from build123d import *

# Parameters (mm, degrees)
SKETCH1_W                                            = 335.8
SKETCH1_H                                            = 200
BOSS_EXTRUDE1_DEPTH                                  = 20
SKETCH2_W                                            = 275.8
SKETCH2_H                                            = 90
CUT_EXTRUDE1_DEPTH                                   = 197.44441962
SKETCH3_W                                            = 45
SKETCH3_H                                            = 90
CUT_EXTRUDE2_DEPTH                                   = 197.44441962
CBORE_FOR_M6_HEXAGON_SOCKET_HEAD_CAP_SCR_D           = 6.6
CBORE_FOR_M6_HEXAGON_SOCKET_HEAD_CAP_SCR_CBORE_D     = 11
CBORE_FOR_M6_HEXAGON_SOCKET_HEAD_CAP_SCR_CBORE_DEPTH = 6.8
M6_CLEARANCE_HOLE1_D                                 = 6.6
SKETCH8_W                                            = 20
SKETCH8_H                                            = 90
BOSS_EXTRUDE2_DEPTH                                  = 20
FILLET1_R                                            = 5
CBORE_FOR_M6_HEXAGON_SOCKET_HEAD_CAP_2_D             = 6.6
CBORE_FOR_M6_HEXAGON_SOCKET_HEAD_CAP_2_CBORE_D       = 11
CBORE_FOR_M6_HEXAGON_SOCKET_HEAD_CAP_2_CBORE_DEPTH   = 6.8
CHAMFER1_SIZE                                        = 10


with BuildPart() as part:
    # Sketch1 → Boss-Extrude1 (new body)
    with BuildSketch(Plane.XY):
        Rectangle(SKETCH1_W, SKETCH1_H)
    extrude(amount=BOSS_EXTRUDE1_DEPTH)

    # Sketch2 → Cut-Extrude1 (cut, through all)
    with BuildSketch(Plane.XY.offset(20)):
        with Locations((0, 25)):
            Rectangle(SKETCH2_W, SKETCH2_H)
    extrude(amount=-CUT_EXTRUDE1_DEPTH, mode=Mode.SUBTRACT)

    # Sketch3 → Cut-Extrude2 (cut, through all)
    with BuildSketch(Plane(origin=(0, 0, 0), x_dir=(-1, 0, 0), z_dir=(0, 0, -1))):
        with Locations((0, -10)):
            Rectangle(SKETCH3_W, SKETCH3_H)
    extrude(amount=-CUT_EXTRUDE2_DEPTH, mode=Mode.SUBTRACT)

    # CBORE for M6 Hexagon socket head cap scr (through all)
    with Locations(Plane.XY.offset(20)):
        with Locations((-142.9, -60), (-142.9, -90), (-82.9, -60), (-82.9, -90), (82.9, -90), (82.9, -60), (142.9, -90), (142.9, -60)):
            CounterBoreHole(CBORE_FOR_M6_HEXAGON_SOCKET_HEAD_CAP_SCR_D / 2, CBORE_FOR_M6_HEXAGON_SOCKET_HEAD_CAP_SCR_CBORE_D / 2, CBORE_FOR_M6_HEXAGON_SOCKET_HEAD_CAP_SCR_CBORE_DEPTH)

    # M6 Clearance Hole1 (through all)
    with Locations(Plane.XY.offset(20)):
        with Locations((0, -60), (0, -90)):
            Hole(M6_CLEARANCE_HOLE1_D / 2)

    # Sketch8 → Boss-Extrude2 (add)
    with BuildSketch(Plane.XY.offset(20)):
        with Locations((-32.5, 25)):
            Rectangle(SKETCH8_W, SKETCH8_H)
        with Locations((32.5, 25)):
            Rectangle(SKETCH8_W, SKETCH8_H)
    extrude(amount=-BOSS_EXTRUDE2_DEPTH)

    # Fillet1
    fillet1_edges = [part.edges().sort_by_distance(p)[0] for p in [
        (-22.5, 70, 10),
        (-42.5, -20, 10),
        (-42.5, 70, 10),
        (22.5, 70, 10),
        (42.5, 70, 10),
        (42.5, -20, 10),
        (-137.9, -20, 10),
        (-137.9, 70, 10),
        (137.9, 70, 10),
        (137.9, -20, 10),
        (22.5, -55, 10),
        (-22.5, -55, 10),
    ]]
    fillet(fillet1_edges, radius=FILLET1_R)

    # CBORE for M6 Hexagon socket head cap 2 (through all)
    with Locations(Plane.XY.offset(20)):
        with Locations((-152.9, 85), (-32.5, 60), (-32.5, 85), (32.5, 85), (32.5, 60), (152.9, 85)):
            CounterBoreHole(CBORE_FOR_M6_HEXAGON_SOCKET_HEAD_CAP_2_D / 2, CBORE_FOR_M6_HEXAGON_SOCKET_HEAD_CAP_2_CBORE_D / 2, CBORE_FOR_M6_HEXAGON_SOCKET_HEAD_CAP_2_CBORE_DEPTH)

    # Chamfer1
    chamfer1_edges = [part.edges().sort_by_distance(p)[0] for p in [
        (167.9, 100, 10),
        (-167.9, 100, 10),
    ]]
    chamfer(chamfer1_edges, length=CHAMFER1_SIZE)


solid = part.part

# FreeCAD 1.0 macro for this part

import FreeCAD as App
import Part
import Sketcher
Q = App.Units.Quantity


def edges_at(feature, points):
    """Names of the edges that pass closest to the given points."""
    edges = feature.Shape.Edges
    near = lambda p: min(range(len(edges)), key=lambda i: edges[i].distToShape(Part.Vertex(*p))[0])
    return sorted({f"Edge{near(p) + 1}" for p in points})

doc = App.newDocument("Part")
params = doc.addObject("Spreadsheet::Sheet", "Params")
for row, (alias, value) in enumerate([
    ("sketch1_height", "200 mm"),
    ("sketch1_width", "335.8 mm"),
    ("pad1_length", "20 mm"),
    ("sketch2_height", "90 mm"),
    ("sketch2_width", "275.8 mm"),
    ("sketch3_width", "45 mm"),
    ("sketch3_height", "90 mm"),
    ("sketch4_diameter", "6.6 mm"),
    ("hole_diameter", "6.6 mm"),
    ("hole_cbore_diameter", "11 mm"),
    ("hole_cbore_depth", "6.8 mm"),
    ("sketch5_diameter", "6.6 mm"),
    ("hole2_diameter", "6.6 mm"),
    ("sketch6_width", "20 mm"),
    ("sketch6_height", "90 mm"),
    ("pad2_length", "20 mm"),
    ("fillet_radius", "5 mm"),
    ("sketch7_diameter", "6.6 mm"),
    ("hole3_diameter", "6.6 mm"),
    ("hole3_cbore_diameter", "11 mm"),
    ("hole3_cbore_depth", "6.8 mm"),
    ("chamfer_size", "10 mm"),
], start=1):
    params.set(f"A{row}", alias)
    params.set(f"B{row}", "=" + value)
    params.setAlias(f"B{row}", alias)

body = doc.addObject("PartDesign::Body", "Body")

# Sketch on XY plane
sketch1 = body.newObject("Sketcher::SketchObject", "Sketch")
sketch1.AttachmentSupport = (doc.getObject("XY_Plane"), [""])
sketch1.MapMode = "FlatFace"
sketch1.addGeometry([
    Part.LineSegment(App.Vector(-168, 100, 0), App.Vector(-168, -100, 0)),
    Part.LineSegment(App.Vector(-168, -100, 0), App.Vector(168, -100, 0)),
    Part.LineSegment(App.Vector(168, -100, 0), App.Vector(168, 100, 0)),
    Part.LineSegment(App.Vector(168, 100, 0), App.Vector(-168, 100, 0)),
], False)
sketch1.addConstraint([
    Sketcher.Constraint("Coincident", 0, 2, 1, 1),
    Sketcher.Constraint("Coincident", 1, 2, 2, 1),
    Sketcher.Constraint("Coincident", 2, 2, 3, 1),
    Sketcher.Constraint("Coincident", 3, 2, 0, 1),
    Sketcher.Constraint("Vertical", 0),
    Sketcher.Constraint("Horizontal", 1),
    Sketcher.Constraint("Vertical", 2),
    Sketcher.Constraint("Horizontal", 3),
    Sketcher.Constraint("Symmetric", 0, 2, 2, 2, -1, 1),
    Sketcher.Constraint("DistanceY", 0, 2, 0, 1, Q("200 mm")),
    Sketcher.Constraint("DistanceX", 1, 1, 1, 2, Q("335.8 mm")),
])
sketch1.setExpression("Constraints[9]", "Params.sketch1_height")
sketch1.setExpression("Constraints[10]", "Params.sketch1_width")
pad1 = body.newObject("PartDesign::Pad", "Pad")
pad1.Profile = sketch1
pad1.setExpression("Length", "Params.pad1_length")

# Sketch on XY plane
sketch2 = body.newObject("Sketcher::SketchObject", "Sketch001")
sketch2.AttachmentSupport = (doc.getObject("XY_Plane"), [""])
sketch2.MapMode = "FlatFace"
sketch2.AttachmentOffset = App.Placement(App.Vector(0, 0, 20), App.Rotation())
sketch2.addGeometry([
    Part.LineSegment(App.Vector(-138, 70, 0), App.Vector(-138, -20, 0)),
    Part.LineSegment(App.Vector(-138, -20, 0), App.Vector(138, -20, 0)),
    Part.LineSegment(App.Vector(138, -20, 0), App.Vector(138, 70, 0)),
    Part.LineSegment(App.Vector(138, 70, 0), App.Vector(-138, 70, 0)),
], False)
sketch2.addConstraint([
    Sketcher.Constraint("Coincident", 0, 2, 1, 1),
    Sketcher.Constraint("Coincident", 1, 2, 2, 1),
    Sketcher.Constraint("Coincident", 2, 2, 3, 1),
    Sketcher.Constraint("Coincident", 3, 2, 0, 1),
    Sketcher.Constraint("Vertical", 0),
    Sketcher.Constraint("Horizontal", 1),
    Sketcher.Constraint("Vertical", 2),
    Sketcher.Constraint("Horizontal", 3),
    Sketcher.Constraint("DistanceY", 0, 2, 0, 1, Q("90 mm")),
    Sketcher.Constraint("DistanceX", 1, 1, 1, 2, Q("275.8 mm")),
    Sketcher.Constraint("DistanceY", 0, 2, -1, 1, Q("20 mm")),
    Sketcher.Constraint("DistanceX", 0, 2, -1, 1, Q("137.9 mm")),
])
sketch2.setExpression("Constraints[8]", "Params.sketch2_height")
sketch2.setExpression("Constraints[9]", "Params.sketch2_width")
pocket1 = body.newObject("PartDesign::Pocket", "Pocket")
pocket1.Profile = sketch2
pocket1.Type = "ThroughAll"

# Sketch on XY plane
sketch3 = body.newObject("Sketcher::SketchObject", "Sketch002")
sketch3.AttachmentSupport = (doc.getObject("XY_Plane"), [""])
sketch3.MapMode = "FlatFace"
sketch3.addGeometry([
    Part.LineSegment(App.Vector(22, 35, 0), App.Vector(22, -55, 0)),
    Part.LineSegment(App.Vector(22, -55, 0), App.Vector(-22, -55, 0)),
    Part.LineSegment(App.Vector(-22, -55, 0), App.Vector(-22, 35, 0)),
    Part.LineSegment(App.Vector(-22, 35, 0), App.Vector(22, 35, 0)),
], False)
sketch3.addConstraint([
    Sketcher.Constraint("Coincident", 0, 2, 1, 1),
    Sketcher.Constraint("Coincident", 1, 2, 2, 1),
    Sketcher.Constraint("Coincident", 2, 2, 3, 1),
    Sketcher.Constraint("Coincident", 3, 2, 0, 1),
    Sketcher.Constraint("Vertical", 0),
    Sketcher.Constraint("Horizontal", 1),
    Sketcher.Constraint("Vertical", 2),
    Sketcher.Constraint("Horizontal", 3),
    Sketcher.Constraint("DistanceX", 1, 2, 1, 1, Q("45 mm")),
    Sketcher.Constraint("DistanceY", 0, 2, 0, 1, Q("90 mm")),
    Sketcher.Constraint("DistanceY", 0, 2, -1, 1, Q("55 mm")),
    Sketcher.Constraint("DistanceX", -1, 1, 0, 2, Q("22.5 mm")),
])
sketch3.setExpression("Constraints[8]", "Params.sketch3_width")
sketch3.setExpression("Constraints[9]", "Params.sketch3_height")
pocket2 = body.newObject("PartDesign::Pocket", "Pocket001")
pocket2.Profile = sketch3
pocket2.Type = "ThroughAll"
pocket2.Reversed = True

# Sketch on XY plane
sketch4 = body.newObject("Sketcher::SketchObject", "Sketch003")
sketch4.AttachmentSupport = (doc.getObject("XY_Plane"), [""])
sketch4.MapMode = "FlatFace"
sketch4.AttachmentOffset = App.Placement(App.Vector(0, 0, 20), App.Rotation())
sketch4.addGeometry([
    Part.Circle(App.Vector(-142.9, -60, 0), App.Vector(0, 0, 1), 3.3),  # 0
    Part.Circle(App.Vector(-142.9, -90, 0), App.Vector(0, 0, 1), 3.3),  # 1
    Part.Circle(App.Vector(-82.9, -60, 0), App.Vector(0, 0, 1), 3.3),  # 2
    Part.Circle(App.Vector(-82.9, -90, 0), App.Vector(0, 0, 1), 3.3),  # 3
    Part.Circle(App.Vector(82.9, -90, 0), App.Vector(0, 0, 1), 3.3),  # 4
    Part.Circle(App.Vector(82.9, -60, 0), App.Vector(0, 0, 1), 3.3),  # 5
    Part.Circle(App.Vector(142.9, -90, 0), App.Vector(0, 0, 1), 3.3),  # 6
    Part.Circle(App.Vector(142.9, -60, 0), App.Vector(0, 0, 1), 3.3),  # 7
], False)
sketch4.addConstraint([
    Sketcher.Constraint("Equal", 0, 1),
    Sketcher.Constraint("Equal", 1, 2),
    Sketcher.Constraint("Equal", 2, 3),
    Sketcher.Constraint("Equal", 3, 4),
    Sketcher.Constraint("Equal", 4, 5),
    Sketcher.Constraint("Equal", 5, 6),
    Sketcher.Constraint("Equal", 6, 7),
    Sketcher.Constraint("Symmetric", 3, 3, 4, 3, -2),
    Sketcher.Constraint("Symmetric", 2, 3, 5, 3, -2),
    Sketcher.Constraint("Symmetric", 1, 3, 6, 3, -2),
    Sketcher.Constraint("Symmetric", 0, 3, 7, 3, -2),
    Sketcher.Constraint("Horizontal", 0, 3, 2, 3),
    Sketcher.Constraint("Horizontal", 1, 3, 3, 3),
    Sketcher.Constraint("Vertical", 0, 3, 1, 3),
    Sketcher.Constraint("Vertical", 2, 3, 3, 3),
    Sketcher.Constraint("Diameter", 0, Q("6.6 mm")),
    Sketcher.Constraint("DistanceY", 0, 3, -1, 1, Q("60 mm")),
    Sketcher.Constraint("DistanceY", 1, 3, -1, 1, Q("90 mm")),
    Sketcher.Constraint("DistanceX", 0, 3, 2, 3, Q("60 mm")),
    Sketcher.Constraint("DistanceX", 0, 3, -1, 1, Q("142.9 mm")),
])
sketch4.setExpression("Constraints[15]", "Params.sketch4_diameter")
doc.recompute()
hole = body.newObject("PartDesign::Hole", "Hole")
hole.Profile = sketch4
hole.ThreadType = "None"
hole.setExpression("Diameter", "Params.hole_diameter")
hole.DepthType = "ThroughAll"
hole.HoleCutType = "Counterbore"
hole.setExpression("HoleCutDiameter", "Params.hole_cbore_diameter")
hole.setExpression("HoleCutDepth", "Params.hole_cbore_depth")

# Sketch on XY plane
sketch5 = body.newObject("Sketcher::SketchObject", "Sketch004")
sketch5.AttachmentSupport = (doc.getObject("XY_Plane"), [""])
sketch5.MapMode = "FlatFace"
sketch5.AttachmentOffset = App.Placement(App.Vector(0, 0, 20), App.Rotation())
sketch5.addGeometry([
    Part.Circle(App.Vector(0, -60, 0), App.Vector(0, 0, 1), 3.3),
    Part.Circle(App.Vector(0, -90, 0), App.Vector(0, 0, 1), 3.3),
], False)
sketch5.addConstraint([
    Sketcher.Constraint("Equal", 0, 1),
    Sketcher.Constraint("PointOnObject", 0, 3, -2),
    Sketcher.Constraint("PointOnObject", 1, 3, -2),
    Sketcher.Constraint("Diameter", 0, Q("6.6 mm")),
    Sketcher.Constraint("DistanceY", 0, 3, -1, 1, Q("60 mm")),
    Sketcher.Constraint("DistanceY", 1, 3, -1, 1, Q("90 mm")),
])
sketch5.setExpression("Constraints[3]", "Params.sketch5_diameter")
doc.recompute()
hole2 = body.newObject("PartDesign::Hole", "Hole001")
hole2.Profile = sketch5
hole2.ThreadType = "None"
hole2.setExpression("Diameter", "Params.hole2_diameter")
hole2.DepthType = "ThroughAll"

# Sketch on XY plane
sketch6 = body.newObject("Sketcher::SketchObject", "Sketch005")
sketch6.AttachmentSupport = (doc.getObject("XY_Plane"), [""])
sketch6.MapMode = "FlatFace"
sketch6.AttachmentOffset = App.Placement(App.Vector(0, 0, 20), App.Rotation())
sketch6.addGeometry([
    Part.LineSegment(App.Vector(-42, 70, 0), App.Vector(-42, -20, 0)),  # 0
    Part.LineSegment(App.Vector(-42, -20, 0), App.Vector(-22, -20, 0)),  # 1
    Part.LineSegment(App.Vector(-22, -20, 0), App.Vector(-22, 70, 0)),  # 2
    Part.LineSegment(App.Vector(-22, 70, 0), App.Vector(-42, 70, 0)),  # 3
    Part.LineSegment(App.Vector(22, 70, 0), App.Vector(22, -20, 0)),  # 4
    Part.LineSegment(App.Vector(22, -20, 0), App.Vector(42, -20, 0)),  # 5
    Part.LineSegment(App.Vector(42, -20, 0), App.Vector(42, 70, 0)),  # 6
    Part.LineSegment(App.Vector(42, 70, 0), App.Vector(22, 70, 0)),  # 7
], False)
sketch6.addConstraint([
    Sketcher.Constraint("Coincident", 0, 2, 1, 1),
    Sketcher.Constraint("Coincident", 1, 2, 2, 1),
    Sketcher.Constraint("Coincident", 2, 2, 3, 1),
    Sketcher.Constraint("Coincident", 3, 2, 0, 1),
    Sketcher.Constraint("Coincident", 4, 2, 5, 1),
    Sketcher.Constraint("Coincident", 5, 2, 6, 1),
    Sketcher.Constraint("Coincident", 6, 2, 7, 1),
    Sketcher.Constraint("Coincident", 7, 2, 4, 1),
    Sketcher.Constraint("Vertical", 0),
    Sketcher.Constraint("Horizontal", 1),
    Sketcher.Constraint("Vertical", 2),
    Sketcher.Constraint("Horizontal", 3),
    Sketcher.Constraint("Vertical", 4),
    Sketcher.Constraint("Horizontal", 5),
    Sketcher.Constraint("Vertical", 6),
    Sketcher.Constraint("Horizontal", 7),
    Sketcher.Constraint("Symmetric", 1, 2, 4, 2, -2),
    Sketcher.Constraint("Symmetric", 3, 2, 6, 2, -2),
    Sketcher.Constraint("DistanceX", 1, 1, 1, 2, Q("20 mm")),
    Sketcher.Constraint("DistanceY", 0, 2, 0, 1, Q("90 mm")),
    Sketcher.Constraint("DistanceY", 0, 2, -1, 1, Q("20 mm")),
    Sketcher.Constraint("DistanceX", 1, 2, 4, 2, Q("45 mm")),
])
sketch6.setExpression("Constraints[18]", "Params.sketch6_width")
sketch6.setExpression("Constraints[19]", "Params.sketch6_height")
pad2 = body.newObject("PartDesign::Pad", "Pad001")
pad2.Profile = sketch6
pad2.setExpression("Length", "Params.pad2_length")
pad2.Reversed = True
doc.recompute()

fillet = body.newObject("PartDesign::Fillet", "Fillet")
fillet.Base = (pad2, edges_at(pad2, [
    (-22.5, 70, 10),
    (-42.5, -20, 10),
    (-42.5, 70, 10),
    (22.5, 70, 10),
    (42.5, 70, 10),
    (42.5, -20, 10),
    (-137.9, -20, 10),
    (-137.9, 70, 10),
    (137.9, 70, 10),
    (137.9, -20, 10),
    (22.5, -55, 10),
    (-22.5, -55, 10),
]))
fillet.setExpression("Radius", "Params.fillet_radius")

# Sketch on XY plane
sketch7 = body.newObject("Sketcher::SketchObject", "Sketch006")
sketch7.AttachmentSupport = (doc.getObject("XY_Plane"), [""])
sketch7.MapMode = "FlatFace"
sketch7.AttachmentOffset = App.Placement(App.Vector(0, 0, 20), App.Rotation())
sketch7.addGeometry([
    Part.Circle(App.Vector(-152.9, 85, 0), App.Vector(0, 0, 1), 3.3),  # 0
    Part.Circle(App.Vector(-32.5, 60, 0), App.Vector(0, 0, 1), 3.3),  # 1
    Part.Circle(App.Vector(-32.5, 85, 0), App.Vector(0, 0, 1), 3.3),  # 2
    Part.Circle(App.Vector(32.5, 85, 0), App.Vector(0, 0, 1), 3.3),  # 3
    Part.Circle(App.Vector(32.5, 60, 0), App.Vector(0, 0, 1), 3.3),  # 4
    Part.Circle(App.Vector(152.9, 85, 0), App.Vector(0, 0, 1), 3.3),  # 5
], False)
sketch7.addConstraint([
    Sketcher.Constraint("Equal", 0, 1),
    Sketcher.Constraint("Equal", 1, 2),
    Sketcher.Constraint("Equal", 2, 3),
    Sketcher.Constraint("Equal", 3, 4),
    Sketcher.Constraint("Equal", 4, 5),
    Sketcher.Constraint("Symmetric", 2, 3, 3, 3, -2),
    Sketcher.Constraint("Symmetric", 1, 3, 4, 3, -2),
    Sketcher.Constraint("Symmetric", 0, 3, 5, 3, -2),
    Sketcher.Constraint("Horizontal", 0, 3, 2, 3),
    Sketcher.Constraint("Vertical", 1, 3, 2, 3),
    Sketcher.Constraint("Diameter", 0, Q("6.6 mm")),
    Sketcher.Constraint("DistanceY", -1, 1, 0, 3, Q("85 mm")),
    Sketcher.Constraint("DistanceY", -1, 1, 1, 3, Q("60 mm")),
    Sketcher.Constraint("DistanceX", 2, 3, 3, 3, Q("65 mm")),
    Sketcher.Constraint("DistanceX", 0, 3, -1, 1, Q("152.9 mm")),
])
sketch7.setExpression("Constraints[10]", "Params.sketch7_diameter")
doc.recompute()
hole3 = body.newObject("PartDesign::Hole", "Hole002")
hole3.Profile = sketch7
hole3.ThreadType = "None"
hole3.setExpression("Diameter", "Params.hole3_diameter")
hole3.DepthType = "ThroughAll"
hole3.HoleCutType = "Counterbore"
hole3.setExpression("HoleCutDiameter", "Params.hole3_cbore_diameter")
hole3.setExpression("HoleCutDepth", "Params.hole3_cbore_depth")
doc.recompute()

chamfer = body.newObject("PartDesign::Chamfer", "Chamfer")
chamfer.Base = (hole3, edges_at(hole3, [(167.9, 100, 10), (-167.9, 100, 10)]))
chamfer.setExpression("Size", "Params.chamfer_size")

doc.recompute()
